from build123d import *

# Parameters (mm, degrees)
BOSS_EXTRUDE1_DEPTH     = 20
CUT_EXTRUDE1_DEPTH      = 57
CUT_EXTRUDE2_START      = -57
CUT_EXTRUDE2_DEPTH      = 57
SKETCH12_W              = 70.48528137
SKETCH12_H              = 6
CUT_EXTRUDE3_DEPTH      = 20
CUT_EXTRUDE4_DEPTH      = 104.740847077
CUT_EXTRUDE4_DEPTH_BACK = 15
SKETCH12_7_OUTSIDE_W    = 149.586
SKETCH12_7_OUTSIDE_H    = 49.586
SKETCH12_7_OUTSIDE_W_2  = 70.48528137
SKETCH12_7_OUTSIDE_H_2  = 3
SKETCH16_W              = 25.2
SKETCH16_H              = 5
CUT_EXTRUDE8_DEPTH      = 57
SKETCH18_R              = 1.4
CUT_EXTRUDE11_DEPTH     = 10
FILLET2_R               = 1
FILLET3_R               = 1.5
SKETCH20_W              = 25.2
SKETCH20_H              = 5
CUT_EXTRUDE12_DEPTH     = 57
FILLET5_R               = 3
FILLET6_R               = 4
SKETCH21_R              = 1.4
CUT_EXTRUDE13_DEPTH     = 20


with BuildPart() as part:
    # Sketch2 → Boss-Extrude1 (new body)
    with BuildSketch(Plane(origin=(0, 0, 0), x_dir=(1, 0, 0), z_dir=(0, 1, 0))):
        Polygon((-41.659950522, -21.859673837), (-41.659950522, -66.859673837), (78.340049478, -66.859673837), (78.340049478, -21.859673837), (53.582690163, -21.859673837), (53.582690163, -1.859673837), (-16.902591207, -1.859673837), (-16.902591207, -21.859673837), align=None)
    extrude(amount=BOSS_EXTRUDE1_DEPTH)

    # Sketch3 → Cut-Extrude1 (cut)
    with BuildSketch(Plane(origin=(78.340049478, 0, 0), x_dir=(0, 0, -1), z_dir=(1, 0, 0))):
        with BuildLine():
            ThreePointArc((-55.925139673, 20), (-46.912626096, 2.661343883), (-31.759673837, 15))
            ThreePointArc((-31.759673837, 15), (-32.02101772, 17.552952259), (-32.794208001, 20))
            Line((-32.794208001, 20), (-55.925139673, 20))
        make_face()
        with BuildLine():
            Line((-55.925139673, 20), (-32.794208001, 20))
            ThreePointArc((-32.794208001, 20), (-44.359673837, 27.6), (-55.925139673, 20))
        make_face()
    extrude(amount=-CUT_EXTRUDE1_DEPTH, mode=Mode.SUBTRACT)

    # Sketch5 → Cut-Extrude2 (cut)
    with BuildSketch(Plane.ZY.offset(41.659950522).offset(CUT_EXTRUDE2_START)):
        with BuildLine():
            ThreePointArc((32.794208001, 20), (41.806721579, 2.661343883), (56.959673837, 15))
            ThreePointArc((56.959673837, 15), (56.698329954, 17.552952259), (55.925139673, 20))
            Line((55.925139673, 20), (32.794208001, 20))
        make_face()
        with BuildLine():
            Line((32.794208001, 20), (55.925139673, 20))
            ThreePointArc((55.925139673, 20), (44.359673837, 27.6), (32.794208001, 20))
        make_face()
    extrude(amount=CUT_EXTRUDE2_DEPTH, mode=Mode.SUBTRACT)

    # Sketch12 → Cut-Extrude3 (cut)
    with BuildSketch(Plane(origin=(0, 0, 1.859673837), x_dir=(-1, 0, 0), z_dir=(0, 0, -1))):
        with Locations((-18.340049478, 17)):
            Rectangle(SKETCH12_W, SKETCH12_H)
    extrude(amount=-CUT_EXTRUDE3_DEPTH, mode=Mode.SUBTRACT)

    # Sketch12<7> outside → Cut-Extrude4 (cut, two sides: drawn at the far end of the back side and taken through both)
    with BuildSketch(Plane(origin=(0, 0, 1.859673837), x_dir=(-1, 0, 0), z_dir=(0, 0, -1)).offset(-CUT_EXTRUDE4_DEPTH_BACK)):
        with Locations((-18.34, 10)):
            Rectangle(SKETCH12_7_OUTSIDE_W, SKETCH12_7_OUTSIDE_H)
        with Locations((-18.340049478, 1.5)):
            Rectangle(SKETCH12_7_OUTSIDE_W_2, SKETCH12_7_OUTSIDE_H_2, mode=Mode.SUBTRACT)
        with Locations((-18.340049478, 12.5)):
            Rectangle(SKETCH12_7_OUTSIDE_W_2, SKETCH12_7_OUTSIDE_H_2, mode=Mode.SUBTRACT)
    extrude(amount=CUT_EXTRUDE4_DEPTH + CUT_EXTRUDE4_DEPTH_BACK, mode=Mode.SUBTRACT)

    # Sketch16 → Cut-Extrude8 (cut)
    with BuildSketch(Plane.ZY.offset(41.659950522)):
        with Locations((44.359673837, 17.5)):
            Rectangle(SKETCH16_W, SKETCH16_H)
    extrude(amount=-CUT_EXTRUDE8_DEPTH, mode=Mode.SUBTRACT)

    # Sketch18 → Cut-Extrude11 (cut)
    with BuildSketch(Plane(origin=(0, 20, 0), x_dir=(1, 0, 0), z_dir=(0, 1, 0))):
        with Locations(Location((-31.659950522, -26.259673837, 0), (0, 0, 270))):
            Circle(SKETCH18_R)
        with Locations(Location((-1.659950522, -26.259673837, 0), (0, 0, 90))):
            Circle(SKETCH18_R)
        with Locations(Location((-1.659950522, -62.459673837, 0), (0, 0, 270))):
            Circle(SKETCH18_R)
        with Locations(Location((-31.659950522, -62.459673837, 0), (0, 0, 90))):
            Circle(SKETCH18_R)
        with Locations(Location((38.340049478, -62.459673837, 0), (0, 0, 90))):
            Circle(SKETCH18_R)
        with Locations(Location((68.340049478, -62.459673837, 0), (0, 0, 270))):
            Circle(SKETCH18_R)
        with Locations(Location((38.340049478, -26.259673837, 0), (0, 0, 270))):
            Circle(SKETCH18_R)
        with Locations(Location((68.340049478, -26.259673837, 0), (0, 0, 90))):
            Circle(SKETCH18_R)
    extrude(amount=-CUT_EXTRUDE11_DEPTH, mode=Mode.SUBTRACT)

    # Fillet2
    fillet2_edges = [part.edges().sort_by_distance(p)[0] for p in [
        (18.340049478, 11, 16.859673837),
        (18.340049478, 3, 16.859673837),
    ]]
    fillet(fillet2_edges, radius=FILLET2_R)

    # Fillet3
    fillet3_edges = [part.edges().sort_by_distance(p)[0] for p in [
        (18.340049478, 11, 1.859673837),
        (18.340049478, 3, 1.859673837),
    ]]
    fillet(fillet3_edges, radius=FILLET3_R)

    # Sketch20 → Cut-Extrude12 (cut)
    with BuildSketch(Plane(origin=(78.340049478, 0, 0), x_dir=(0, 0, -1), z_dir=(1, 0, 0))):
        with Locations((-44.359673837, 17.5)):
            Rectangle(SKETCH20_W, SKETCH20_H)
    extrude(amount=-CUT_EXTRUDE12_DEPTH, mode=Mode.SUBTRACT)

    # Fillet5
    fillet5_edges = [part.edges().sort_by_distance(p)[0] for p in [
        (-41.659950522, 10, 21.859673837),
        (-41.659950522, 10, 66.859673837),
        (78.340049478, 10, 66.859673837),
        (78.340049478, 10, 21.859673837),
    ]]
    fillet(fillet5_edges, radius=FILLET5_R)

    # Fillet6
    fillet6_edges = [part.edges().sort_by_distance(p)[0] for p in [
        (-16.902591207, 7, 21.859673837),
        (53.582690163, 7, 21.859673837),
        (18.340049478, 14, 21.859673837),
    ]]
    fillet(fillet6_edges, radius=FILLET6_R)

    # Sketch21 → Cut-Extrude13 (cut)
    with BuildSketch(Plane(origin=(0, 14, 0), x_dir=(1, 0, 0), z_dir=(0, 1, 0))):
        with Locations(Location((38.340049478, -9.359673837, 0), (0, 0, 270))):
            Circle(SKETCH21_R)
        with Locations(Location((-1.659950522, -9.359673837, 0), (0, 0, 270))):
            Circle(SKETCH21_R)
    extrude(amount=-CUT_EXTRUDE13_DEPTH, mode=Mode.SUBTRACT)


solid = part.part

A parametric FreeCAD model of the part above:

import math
import FreeCAD as App
import Part
import Sketcher
from FreeCAD import Vector


def edges_at(feature, points):
    """Names of the edges that pass closest to the given points."""
    edges = feature.Shape.Edges
    near = lambda p: min(range(len(edges)), key=lambda i: edges[i].distToShape(Part.Vertex(*p))[0])
    return sorted({f"Edge{near(p) + 1}" for p in points})


def add_polygon(sketch, points):
    """Adds a closed chain of lines whose ends are joined by coincident constraints."""
    first, n = sketch.GeometryCount, len(points)
    for a, b in zip(points, points[1:] + points[:1]):
        sketch.addGeometry(Part.LineSegment(App.Vector(*a, 0), App.Vector(*b, 0)), False)
    for i in range(n):
        sketch.addConstraint(Sketcher.Constraint("Coincident", first + i, 2, first + (i + 1) % n, 1))

doc = App.newDocument("Part")
params = doc.addObject("Spreadsheet::Sheet", "Params")
for row, (alias, value) in enumerate([
    ("sketch1_width", "120 mm"),
    ("sketch1_height", "45 mm"),
    ("sketch1_height2", "20 mm"),
    ("pad1_length", "20 mm"),
    ("sketch2_radius", "12.6 mm"),
    ("pocket1_length", "57 mm"),
    ("sketch3_radius", "12.6 mm"),
    ("pocket2_length", "57 mm"),
    ("sketch4_height", "6 mm"),
    ("pocket3_length", "20 mm"),
    ("sketch5_height", "3 mm"),
    ("pocket4_length", "104.740847 mm"),
    ("pocket4_length2", "15 mm"),
    ("sketch6_width", "5 mm"),
    ("sketch6_height", "25.2 mm"),
    ("pocket5_length", "57 mm"),
    ("sketch7_diameter", "2.8 mm"),
    ("pocket6_length", "10 mm"),
    ("fillet_radius", "1 mm"),
    ("fillet2_radius", "1.5 mm"),
    ("sketch8_width", "5 mm"),
    ("sketch8_height", "25.2 mm"),
    ("pocket7_length", "57 mm"),
    ("fillet3_radius", "3 mm"),
    ("fillet4_radius", "4 mm"),
    ("sketch9_diameter", "2.8 mm"),
    ("pocket8_length", "20 mm"),
], start=1):
    params.set(f"A{row}", alias)
    params.set(f"B{row}", "=" + value)
    params.setAlias(f"B{row}", alias)

body = doc.addObject("PartDesign::Body", "Body")

# Sketch on XZ plane
sketch1 = body.newObject("Sketcher::SketchObject", "Sketch")
sketch1.AttachmentSupport = (doc.getObject("XZ_Plane"), [""])
sketch1.MapMode = "FlatFace"
add_polygon(sketch1, [(-41.659951, 21.859674), (-41.659951, 66.859674), (78.340049, 66.859674), (78.340049, 21.859674), (53.58269, 21.859674), (53.58269, 1.859674), (-16.902591, 1.859674), (-16.902591, 21.859674)])  # lines 0-7
sketch1.addConstraint([
    Sketcher.Constraint("Vertical", 0),
    Sketcher.Constraint("Horizontal", 1),
    Sketcher.Constraint("Vertical", 2),
    Sketcher.Constraint("Horizontal", 3),
    Sketcher.Constraint("Vertical", 4),
    Sketcher.Constraint("Horizontal", 5),
    Sketcher.Constraint("Vertical", 6),
    Sketcher.Constraint("Horizontal", 7),
    Sketcher.Constraint("Horizontal", 3, 2, 6, 2),
    Sketcher.Constraint("Equal", 3, 7),
    Sketcher.Constraint("DistanceX", 1, 1, 1, 2, 120.0),
    Sketcher.Constraint("DistanceY", 0, 1, 0, 2, 45.0),
    Sketcher.Constraint("DistanceY", 4, 2, 4, 1, 20.0),
    Sketcher.Constraint("DistanceX", 3, 2, 3, 1, 24.757359),
    Sketcher.Constraint("DistanceX", 0, 2, -1, 1, 41.659951),
    Sketcher.Constraint("DistanceY", -1, 1, 0, 2, 66.859674),
])
sketch1.setExpression("Constraints[18]", "Params.sketch1_width")
sketch1.setExpression("Constraints[19]", "Params.sketch1_height")
sketch1.setExpression("Constraints[20]", "Params.sketch1_height2")
pad1 = body.newObject("PartDesign::Pad", "Pad")
pad1.Profile = sketch1
pad1.setExpression("Length", "Params.pad1_length")
pad1.Reversed = True

# Sketch on YZ plane
sketch2 = body.newObject("Sketcher::SketchObject", "Sketch001")
sketch2.AttachmentSupport = (doc.getObject("YZ_Plane"), [""])
sketch2.MapMode = "FlatFace"
sketch2.AttachmentOffset = App.Placement(Vector(0, 0, 78.340049), App.Rotation())
sketch2.addGeometry([
    Part.ArcOfCircle(Part.Circle(Vector(15, 44.359674, 0), Vector(0, 0, 1), 12.6), math.radians(66.620132), math.radians(270)),
    Part.ArcOfCircle(Part.Circle(Vector(15, 44.359674, 0), Vector(0, 0, 1), 12.6), math.radians(-90), math.radians(-66.620132)),
    Part.ArcOfCircle(Part.Circle(Vector(15, 44.359674, 0), Vector(0, 0, 1), 12.6), math.radians(-66.620132), math.radians(66.620132)),
], False)
sketch2.addConstraint([
    Sketcher.Constraint("Tangent", 0, 2, 1, 1),
    Sketcher.Constraint("Tangent", 1, 2, 2, 1),
    Sketcher.Constraint("Tangent", 2, 2, 0, 1),
    Sketcher.Constraint("Vertical", 2, 3, 0, 2),
    Sketcher.Constraint("Vertical", 1, 2, 2, 2),
    Sketcher.Constraint("Radius", 0, 12.6),
    Sketcher.Constraint("DistanceX", -1, 1, 0, 3, 15.0),
    Sketcher.Constraint("DistanceX", -1, 1, 1, 2, 20.0),
    Sketcher.Constraint("DistanceY", -1, 1, 1, 2, 32.794208),
])
sketch2.setExpression("Constraints[5]", "Params.sketch2_radius")
pocket1 = body.newObject("PartDesign::Pocket", "Pocket")
pocket1.Profile = sketch2
pocket1.setExpression("Length", "Params.pocket1_length")

# Sketch on YZ plane
sketch3 = body.newObject("Sketcher::SketchObject", "Sketch002")
sketch3.AttachmentSupport = (doc.getObject("YZ_Plane"), [""])
sketch3.MapMode = "FlatFace"
sketch3.AttachmentOffset = App.Placement(Vector(0, 0, 15.340049), App.Rotation())
sketch3.addGeometry([
    Part.ArcOfCircle(Part.Circle(Vector(15, 44.359674, 0), Vector(0, 0, 1), 12.6), math.radians(90), math.radians(293.379868)),
    Part.ArcOfCircle(Part.Circle(Vector(15, 44.359674, 0), Vector(0, 0, 1), 12.6), math.radians(66.620132), math.radians(90)),
    Part.ArcOfCircle(Part.Circle(Vector(15, 44.359674, 0), Vector(0, 0, 1), 12.6), math.radians(-66.620132), math.radians(66.620132)),
], False)
sketch3.addConstraint([
    Sketcher.Constraint("Tangent", 0, 1, 1, 2),
    Sketcher.Constraint("Tangent", 1, 1, 2, 2),
    Sketcher.Constraint("Tangent", 2, 1, 0, 2),
    Sketcher.Constraint("Vertical", 2, 3, 0, 1),
    Sketcher.Constraint("Vertical", 1, 1, 2, 1),
    Sketcher.Constraint("Radius", 0, 12.6),
    Sketcher.Constraint("DistanceX", -1, 1, 0, 3, 15.0),
    Sketcher.Constraint("DistanceX", -1, 1, 1, 1, 20.0),
    Sketcher.Constraint("DistanceY", -1, 1, 1, 1, 55.92514),
])
sketch3.setExpression("Constraints[5]", "Params.sketch3_radius")
pocket2 = body.newObject("PartDesign::Pocket", "Pocket001")
pocket2.Profile = sketch3
pocket2.setExpression("Length", "Params.pocket2_length")

# Sketch on XY plane
sketch4 = body.newObject("Sketcher::SketchObject", "Sketch003")
sketch4.AttachmentSupport = (doc.getObject("XY_Plane"), [""])
sketch4.MapMode = "FlatFace"
sketch4.AttachmentOffset = App.Placement(Vector(0, 0, 1.859674), App.Rotation())
add_polygon(sketch4, [(53.58269, 20), (53.58269, 14), (-16.902591, 14), (-16.902591, 20)])  # lines 0-3
sketch4.addConstraint([
    Sketcher.Constraint("Vertical", 0),
    Sketcher.Constraint("Horizontal", 1),
    Sketcher.Constraint("Vertical", 2),
    Sketcher.Constraint("Horizontal", 3),
    Sketcher.Constraint("DistanceY", 0, 2, 0, 1, 6.0),
    Sketcher.Constraint("DistanceY", -1, 1, 0, 2, 14.0),
    Sketcher.Constraint("DistanceX", 1, 2, 1, 1, 70.485281),
    Sketcher.Constraint("DistanceX", -1, 1, 0, 2, 53.58269),
])
sketch4.setExpression("Constraints[8]", "Params.sketch4_height")
pocket3 = body.newObject("PartDesign::Pocket", "Pocket002")
pocket3.Profile = sketch4
pocket3.setExpression("Length", "Params.pocket3_length")
pocket3.Reversed = True

# Sketch on XY plane
sketch5 = body.newObject("Sketcher::SketchObject", "Sketch004")
sketch5.AttachmentSupport = (doc.getObject("XY_Plane"), [""])
sketch5.MapMode = "FlatFace"
sketch5.AttachmentOffset = App.Placement(Vector(0, 0, 1.859674), App.Rotation())
add_polygon(sketch5, [(93.133, 34.793), (93.133, -14.793), (-56.453, -14.793), (-56.453, 34.793)])  # lines 0-3
add_polygon(sketch5, [(-16.902591, 0), (53.58269, 0), (53.58269, 3), (-16.902591, 3)])  # lines 4-7
add_polygon(sketch5, [(-16.902591, 11), (53.58269, 11), (53.58269, 14), (-16.902591, 14)])  # lines 8-11
sketch5.addConstraint([
    Sketcher.Constraint("Vertical", 0),
    Sketcher.Constraint("Horizontal", 1),
    Sketcher.Constraint("Vertical", 2),
    Sketcher.Constraint("Horizontal", 3),
    Sketcher.Constraint("Horizontal", 4),
    Sketcher.Constraint("Vertical", 5),
    Sketcher.Constraint("Horizontal", 6),
    Sketcher.Constraint("Vertical", 7),
    Sketcher.Constraint("Horizontal", 8),
    Sketcher.Constraint("Vertical", 9),
    Sketcher.Constraint("Horizontal", 10),
    Sketcher.Constraint("Vertical", 11),
    Sketcher.Constraint("PointOnObject", 4, 2, -1),
    Sketcher.Constraint("Vertical", 5, 2, 8, 2),
    Sketcher.Constraint("Vertical", 7, 2, 10, 2),
    Sketcher.Constraint("Equal", 7, 9),
    Sketcher.Constraint("DistanceY", 5, 1, 5, 2, 3.0),
    Sketcher.Constraint("DistanceY", -1, 1, 8, 2, 11.0),
    Sketcher.Constraint("DistanceX", 1, 2, 1, 1, 149.586),
    Sketcher.Constraint("DistanceY", 0, 2, 0, 1, 49.586),
    Sketcher.Constraint("DistanceX", -1, 1, 0, 2, 93.133),
    Sketcher.Constraint("DistanceY", 0, 2, -1, 1, 14.793),
    Sketcher.Constraint("DistanceX", 4, 1, 4, 2, 70.485281),
    Sketcher.Constraint("DistanceX", -1, 1, 4, 2, 53.58269),
])
sketch5.setExpression("Constraints[28]", "Params.sketch5_height")
pocket4 = body.newObject("PartDesign::Pocket", "Pocket003")
pocket4.Profile = sketch5
pocket4.Type = "TwoLengths"
pocket4.setExpression("Length", "Params.pocket4_length")
pocket4.setExpression("Length2", "Params.pocket4_length2")

# Sketch on YZ plane
sketch6 = body.newObject("Sketcher::SketchObject", "Sketch005")
sketch6.AttachmentSupport = (doc.getObject("YZ_Plane"), [""])
sketch6.MapMode = "FlatFace"
sketch6.AttachmentOffset = App.Placement(Vector(0, 0, -41.659951), App.Rotation())
add_polygon(sketch6, [(20, 31.759674), (15, 31.759674), (15, 56.959674), (20, 56.959674)])  # lines 0-3
sketch6.addConstraint([
    Sketcher.Constraint("Horizontal", 0),
    Sketcher.Constraint("Vertical", 1),
    Sketcher.Constraint("Horizontal", 2),
    Sketcher.Constraint("Vertical", 3),
    Sketcher.Constraint("DistanceX", 0, 2, 0, 1, 5.0),
    Sketcher.Constraint("DistanceY", 1, 1, 1, 2, 25.2),
    Sketcher.Constraint("DistanceX", -1, 1, 0, 2, 15.0),
    Sketcher.Constraint("DistanceY", -1, 1, 0, 2, 31.759674),
])
sketch6.setExpression("Constraints[8]", "Params.sketch6_width")
sketch6.setExpression("Constraints[9]", "Params.sketch6_height")
pocket5 = body.newObject("PartDesign::Pocket", "Pocket004")
pocket5.Profile = sketch6
pocket5.setExpression("Length", "Params.pocket5_length")
pocket5.Reversed = True

# Sketch on XZ plane
sketch7 = body.newObject("Sketcher::SketchObject", "Sketch006")
sketch7.AttachmentSupport = (doc.getObject("XZ_Plane"), [""])
sketch7.MapMode = "FlatFace"
sketch7.AttachmentOffset = App.Placement(Vector(0, 0, -20), App.Rotation())
sketch7.addGeometry([
    Part.Circle(Vector(-31.659951, 26.259674, 0), Vector(0, 0, 1), 1.4),  # 0
    Part.Circle(Vector(-1.659951, 26.259674, 0), Vector(0, 0, 1), 1.4),  # 1
    Part.Circle(Vector(-1.659951, 62.459674, 0), Vector(0, 0, 1), 1.4),  # 2
    Part.Circle(Vector(-31.659951, 62.459674, 0), Vector(0, 0, 1), 1.4),  # 3
    Part.Circle(Vector(38.340049, 62.459674, 0), Vector(0, 0, 1), 1.4),  # 4
    Part.Circle(Vector(68.340049, 62.459674, 0), Vector(0, 0, 1), 1.4),  # 5
    Part.Circle(Vector(38.340049, 26.259674, 0), Vector(0, 0, 1), 1.4),  # 6
    Part.Circle(Vector(68.340049, 26.259674, 0), Vector(0, 0, 1), 1.4),  # 7
], False)
sketch7.addConstraint([
    Sketcher.Constraint("Equal", 0, 1),
    Sketcher.Constraint("Equal", 1, 2),
    Sketcher.Constraint("Equal", 2, 3),
    Sketcher.Constraint("Equal", 3, 4),
    Sketcher.Constraint("Equal", 4, 5),
    Sketcher.Constraint("Equal", 5, 6),
    Sketcher.Constraint("Equal", 6, 7),
    Sketcher.Constraint("Horizontal", 0, 3, 1, 3),
    Sketcher.Constraint("Horizontal", 2, 3, 3, 3),
    Sketcher.Constraint("Horizontal", 3, 3, 4, 3),
    Sketcher.Constraint("Horizontal", 4, 3, 5, 3),
    Sketcher.Constraint("Horizontal", 1, 3, 6, 3),
    Sketcher.Constraint("Horizontal", 6, 3, 7, 3),
    Sketcher.Constraint("Vertical", 1, 3, 2, 3),
    Sketcher.Constraint("Vertical", 0, 3, 3, 3),
    Sketcher.Constraint("Vertical", 4, 3, 6, 3),
    Sketcher.Constraint("Vertical", 5, 3, 7, 3),
    Sketcher.Constraint("Diameter", 0, 2.8),
    Sketcher.Constraint("DistanceX", 0, 3, 1, 3, 30.0),
    Sketcher.Constraint("DistanceX", 2, 3, 4, 3, 40.0),
    Sketcher.Constraint("DistanceX", 4, 3, 5, 3, 30.0),
    Sketcher.Constraint("DistanceY", 1, 3, 2, 3, 36.2),
    Sketcher.Constraint("DistanceX", 0, 3, -1, 1, 31.659951),
    Sketcher.Constraint("DistanceY", -1, 1, 0, 3, 26.259674),
])
sketch7.setExpression("Constraints[17]", "Params.sketch7_diameter")
pocket6 = body.newObject("PartDesign::Pocket", "Pocket005")
pocket6.Profile = sketch7
pocket6.setExpression("Length", "Params.pocket6_length")
pocket6.Reversed = True
doc.recompute()

fillet = body.newObject("PartDesign::Fillet", "Fillet")
fillet.Base = (pocket6, edges_at(pocket6, [(18.34, 11, 16.86), (18.34, 3, 16.86)]))
fillet.setExpression("Radius", "Params.fillet_radius")
doc.recompute()

fillet2 = body.newObject("PartDesign::Fillet", "Fillet001")
fillet2.Base = (fillet, edges_at(fillet, [(18.34, 11, 1.86), (18.34, 3, 1.86)]))
fillet2.setExpression("Radius", "Params.fillet2_radius")

# Sketch on YZ plane
sketch8 = body.newObject("Sketcher::SketchObject", "Sketch007")
sketch8.AttachmentSupport = (doc.getObject("YZ_Plane"), [""])
sketch8.MapMode = "FlatFace"
sketch8.AttachmentOffset = App.Placement(Vector(0, 0, 78.340049), App.Rotation())
add_polygon(sketch8, [(20, 56.959674), (15, 56.959674), (15, 31.759674), (20, 31.759674)])  # lines 0-3
sketch8.addConstraint([
    Sketcher.Constraint("Horizontal", 0),
    Sketcher.Constraint("Vertical", 1),
    Sketcher.Constraint("Horizontal", 2),
    Sketcher.Constraint("Vertical", 3),
    Sketcher.Constraint("DistanceX", 0, 2, 0, 1, 5.0),
    Sketcher.Constraint("DistanceY", 1, 2, 1, 1, 25.2),
    Sketcher.Constraint("DistanceX", -1, 1, 0, 2, 15.0),
    Sketcher.Constraint("DistanceY", -1, 1, 0, 2, 56.959674),
])
sketch8.setExpression("Constraints[8]", "Params.sketch8_width")
sketch8.setExpression("Constraints[9]", "Params.sketch8_height")
pocket7 = body.newObject("PartDesign::Pocket", "Pocket006")
pocket7.Profile = sketch8
pocket7.setExpression("Length", "Params.pocket7_length")
doc.recompute()

fillet3 = body.newObject("PartDesign::Fillet", "Fillet002")
fillet3.Base = (pocket7, edges_at(pocket7, [
    (-41.66, 10, 21.86),
    (-41.66, 10, 66.86),
    (78.34, 10, 66.86),
    (78.34, 10, 21.86),
]))
fillet3.setExpression("Radius", "Params.fillet3_radius")
doc.recompute()

fillet4 = body.newObject("PartDesign::Fillet", "Fillet003")
fillet4.Base = (fillet3, edges_at(fillet3, [(-16.903, 7, 21.86), (53.583, 7, 21.86), (18.34, 14, 21.86)]))
fillet4.setExpression("Radius", "Params.fillet4_radius")

# Sketch on XZ plane
sketch9 = body.newObject("Sketcher::SketchObject", "Sketch008")
sketch9.AttachmentSupport = (doc.getObject("XZ_Plane"), [""])
sketch9.MapMode = "FlatFace"
sketch9.AttachmentOffset = App.Placement(Vector(0, 0, -14), App.Rotation())
sketch9.addGeometry([
    Part.Circle(Vector(38.340049, 9.359674, 0), Vector(0, 0, 1), 1.4),
    Part.Circle(Vector(-1.659951, 9.359674, 0), Vector(0, 0, 1), 1.4),
], False)
sketch9.addConstraint([
    Sketcher.Constraint("Equal", 0, 1),
    Sketcher.Constraint("Horizontal", 0, 3, 1, 3),
    Sketcher.Constraint("Diameter", 0, 2.8),
    Sketcher.Constraint("DistanceX", 1, 3, 0, 3, 40.0),
    Sketcher.Constraint("DistanceX", -1, 1, 0, 3, 38.340049),
    Sketcher.Constraint("DistanceY", -1, 1, 0, 3, 9.359674),
])
sketch9.setExpression("Constraints[2]", "Params.sketch9_diameter")
pocket8 = body.newObject("PartDesign::Pocket", "Pocket007")
pocket8.Profile = sketch9
pocket8.setExpression("Length", "Params.pocket8_length")
pocket8.Reversed = True

doc.recompute()
